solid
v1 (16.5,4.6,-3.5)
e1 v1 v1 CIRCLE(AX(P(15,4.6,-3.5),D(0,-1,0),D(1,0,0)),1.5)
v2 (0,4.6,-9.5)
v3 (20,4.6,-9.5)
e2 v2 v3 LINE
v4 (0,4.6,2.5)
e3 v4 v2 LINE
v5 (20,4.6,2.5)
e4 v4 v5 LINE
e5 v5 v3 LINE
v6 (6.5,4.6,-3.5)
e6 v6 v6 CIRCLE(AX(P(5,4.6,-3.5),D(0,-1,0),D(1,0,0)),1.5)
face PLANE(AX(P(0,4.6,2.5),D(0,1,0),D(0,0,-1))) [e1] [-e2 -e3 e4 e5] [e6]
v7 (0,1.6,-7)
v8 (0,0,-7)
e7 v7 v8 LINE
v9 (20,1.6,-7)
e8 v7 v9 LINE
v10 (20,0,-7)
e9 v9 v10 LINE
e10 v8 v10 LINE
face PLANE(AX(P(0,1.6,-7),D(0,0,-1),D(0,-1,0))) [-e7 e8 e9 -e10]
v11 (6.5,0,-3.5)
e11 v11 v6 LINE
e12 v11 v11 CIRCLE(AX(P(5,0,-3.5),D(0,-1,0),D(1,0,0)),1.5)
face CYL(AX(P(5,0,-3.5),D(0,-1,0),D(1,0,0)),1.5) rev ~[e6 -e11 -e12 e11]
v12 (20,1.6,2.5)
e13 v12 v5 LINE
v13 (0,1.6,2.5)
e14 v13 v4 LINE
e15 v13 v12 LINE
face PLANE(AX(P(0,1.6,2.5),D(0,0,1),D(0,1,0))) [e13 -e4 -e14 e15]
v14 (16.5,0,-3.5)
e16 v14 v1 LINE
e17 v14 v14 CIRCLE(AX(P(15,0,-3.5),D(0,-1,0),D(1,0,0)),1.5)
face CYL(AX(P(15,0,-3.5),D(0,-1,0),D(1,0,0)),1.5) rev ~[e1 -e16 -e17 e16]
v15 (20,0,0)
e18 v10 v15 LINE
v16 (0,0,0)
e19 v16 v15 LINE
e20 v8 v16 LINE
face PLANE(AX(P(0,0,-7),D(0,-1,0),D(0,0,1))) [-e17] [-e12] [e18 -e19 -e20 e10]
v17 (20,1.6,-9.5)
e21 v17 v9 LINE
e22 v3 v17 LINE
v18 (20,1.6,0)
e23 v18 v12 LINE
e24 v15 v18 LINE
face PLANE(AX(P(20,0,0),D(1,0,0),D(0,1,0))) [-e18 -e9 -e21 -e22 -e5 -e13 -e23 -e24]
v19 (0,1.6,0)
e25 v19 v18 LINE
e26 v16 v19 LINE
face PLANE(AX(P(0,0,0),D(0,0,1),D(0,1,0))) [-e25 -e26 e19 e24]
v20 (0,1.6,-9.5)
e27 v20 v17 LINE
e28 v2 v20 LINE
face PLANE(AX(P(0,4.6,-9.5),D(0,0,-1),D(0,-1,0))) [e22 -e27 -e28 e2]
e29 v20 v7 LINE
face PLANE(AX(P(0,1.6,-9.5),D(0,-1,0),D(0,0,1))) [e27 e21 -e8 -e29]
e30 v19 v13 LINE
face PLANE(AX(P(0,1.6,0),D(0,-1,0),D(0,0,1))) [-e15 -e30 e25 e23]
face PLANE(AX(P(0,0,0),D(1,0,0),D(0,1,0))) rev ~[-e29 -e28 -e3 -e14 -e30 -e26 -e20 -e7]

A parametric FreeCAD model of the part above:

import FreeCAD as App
import Part
import Sketcher

doc = App.newDocument("Part")
body = doc.addObject("PartDesign::Body", "Body")

sketch1 = body.newObject("Sketcher::SketchObject", "Sketch")
sketch1.AttachmentSupport = (doc.getObject("YZ_Plane"), [""])
sketch1.MapMode = "FlatFace"
sketch1.addGeometry(Part.LineSegment(App.Vector(1.6, 0, 0), App.Vector(0, 0, 0)), False)
sketch1.addGeometry(Part.LineSegment(App.Vector(0, 0, 0), App.Vector(0, -7, 0)), False)
sketch1.addGeometry(Part.LineSegment(App.Vector(0, -7, 0), App.Vector(1.6, -7, 0)), False)
sketch1.addGeometry(Part.LineSegment(App.Vector(1.6, -7, 0), App.Vector(1.6, -9.5, 0)), False)
sketch1.addGeometry(Part.LineSegment(App.Vector(1.6, -9.5, 0), App.Vector(4.6, -9.5, 0)), False)
sketch1.addGeometry(Part.LineSegment(App.Vector(4.6, -9.5, 0), App.Vector(4.6, 2.5, 0)), False)
sketch1.addGeometry(Part.LineSegment(App.Vector(4.6, 2.5, 0), App.Vector(1.6, 2.5, 0)), False)
sketch1.addGeometry(Part.LineSegment(App.Vector(1.6, 2.5, 0), App.Vector(1.6, 0, 0)), False)
sketch1.addConstraint(Sketcher.Constraint("Coincident", 0, 2, 1, 1))
sketch1.addConstraint(Sketcher.Constraint("Coincident", 1, 2, 2, 1))
sketch1.addConstraint(Sketcher.Constraint("Coincident", 2, 2, 3, 1))
sketch1.addConstraint(Sketcher.Constraint("Coincident", 3, 2, 4, 1))
sketch1.addConstraint(Sketcher.Constraint("Coincident", 4, 2, 5, 1))
sketch1.addConstraint(Sketcher.Constraint("Coincident", 5, 2, 6, 1))
sketch1.addConstraint(Sketcher.Constraint("Coincident", 6, 2, 7, 1))
sketch1.addConstraint(Sketcher.Constraint("Coincident", 7, 2, 0, 1))
sketch1.addConstraint(Sketcher.Constraint("Horizontal", 0))
sketch1.addConstraint(Sketcher.Constraint("Vertical", 1))
sketch1.addConstraint(Sketcher.Constraint("Horizontal", 2))
sketch1.addConstraint(Sketcher.Constraint("Vertical", 3))
sketch1.addConstraint(Sketcher.Constraint("Horizontal", 4))
sketch1.addConstraint(Sketcher.Constraint("Vertical", 5))
sketch1.addConstraint(Sketcher.Constraint("Horizontal", 6))
sketch1.addConstraint(Sketcher.Constraint("Vertical", 7))
sketch1.addConstraint(Sketcher.Constraint("Coincident", 0, 2, -1, 1))
sketch1.addConstraint(Sketcher.Constraint("Vertical", 3, 2, 6, 2))
sketch1.addConstraint(Sketcher.Constraint("Equal", 3, 7))
sketch1.addConstraint(Sketcher.Constraint("DistanceX", 4, 1, 4, 2, 3.0))
sketch1.addConstraint(Sketcher.Constraint("DistanceY", 1, 2, 1, 1, 7.0))
sketch1.addConstraint(Sketcher.Constraint("DistanceY", 5, 1, 5, 2, 12.0))
sketch1.addConstraint(Sketcher.Constraint("DistanceX", -1, 1, 4, 2, 4.6))
pad1 = body.newObject("PartDesign::Pad", "Pad")
pad1.Profile = sketch1
pad1.Length = 20

sketch2 = body.newObject("Sketcher::SketchObject", "Sketch001")
sketch2.AttachmentSupport = (doc.getObject("XZ_Plane"), [""])
sketch2.MapMode = "FlatFace"
sketch2.addGeometry(Part.Circle(App.Vector(5, -3.5, 0), App.Vector(0, 0, 1), 1.5), False)
sketch2.addGeometry(Part.Circle(App.Vector(15, -3.5, 0), App.Vector(0, 0, 1), 1.5), False)
sketch2.addConstraint(Sketcher.Constraint("Equal", 0, 1))
sketch2.addConstraint(Sketcher.Constraint("Horizontal", 0, 3, 1, 3))
sketch2.addConstraint(Sketcher.Constraint("Diameter", 0, 3.0))
sketch2.addConstraint(Sketcher.Constraint("DistanceX", -1, 1, 0, 3, 5.0))
sketch2.addConstraint(Sketcher.Constraint("DistanceX", 0, 3, 1, 3, 10.0))
sketch2.addConstraint(Sketcher.Constraint("DistanceY", 0, 3, -1, 1, 3.5))
pocket1 = body.newObject("PartDesign::Pocket", "Pocket")
pocket1.Profile = sketch2
pocket1.Type = "ThroughAll"

doc.recompute()
